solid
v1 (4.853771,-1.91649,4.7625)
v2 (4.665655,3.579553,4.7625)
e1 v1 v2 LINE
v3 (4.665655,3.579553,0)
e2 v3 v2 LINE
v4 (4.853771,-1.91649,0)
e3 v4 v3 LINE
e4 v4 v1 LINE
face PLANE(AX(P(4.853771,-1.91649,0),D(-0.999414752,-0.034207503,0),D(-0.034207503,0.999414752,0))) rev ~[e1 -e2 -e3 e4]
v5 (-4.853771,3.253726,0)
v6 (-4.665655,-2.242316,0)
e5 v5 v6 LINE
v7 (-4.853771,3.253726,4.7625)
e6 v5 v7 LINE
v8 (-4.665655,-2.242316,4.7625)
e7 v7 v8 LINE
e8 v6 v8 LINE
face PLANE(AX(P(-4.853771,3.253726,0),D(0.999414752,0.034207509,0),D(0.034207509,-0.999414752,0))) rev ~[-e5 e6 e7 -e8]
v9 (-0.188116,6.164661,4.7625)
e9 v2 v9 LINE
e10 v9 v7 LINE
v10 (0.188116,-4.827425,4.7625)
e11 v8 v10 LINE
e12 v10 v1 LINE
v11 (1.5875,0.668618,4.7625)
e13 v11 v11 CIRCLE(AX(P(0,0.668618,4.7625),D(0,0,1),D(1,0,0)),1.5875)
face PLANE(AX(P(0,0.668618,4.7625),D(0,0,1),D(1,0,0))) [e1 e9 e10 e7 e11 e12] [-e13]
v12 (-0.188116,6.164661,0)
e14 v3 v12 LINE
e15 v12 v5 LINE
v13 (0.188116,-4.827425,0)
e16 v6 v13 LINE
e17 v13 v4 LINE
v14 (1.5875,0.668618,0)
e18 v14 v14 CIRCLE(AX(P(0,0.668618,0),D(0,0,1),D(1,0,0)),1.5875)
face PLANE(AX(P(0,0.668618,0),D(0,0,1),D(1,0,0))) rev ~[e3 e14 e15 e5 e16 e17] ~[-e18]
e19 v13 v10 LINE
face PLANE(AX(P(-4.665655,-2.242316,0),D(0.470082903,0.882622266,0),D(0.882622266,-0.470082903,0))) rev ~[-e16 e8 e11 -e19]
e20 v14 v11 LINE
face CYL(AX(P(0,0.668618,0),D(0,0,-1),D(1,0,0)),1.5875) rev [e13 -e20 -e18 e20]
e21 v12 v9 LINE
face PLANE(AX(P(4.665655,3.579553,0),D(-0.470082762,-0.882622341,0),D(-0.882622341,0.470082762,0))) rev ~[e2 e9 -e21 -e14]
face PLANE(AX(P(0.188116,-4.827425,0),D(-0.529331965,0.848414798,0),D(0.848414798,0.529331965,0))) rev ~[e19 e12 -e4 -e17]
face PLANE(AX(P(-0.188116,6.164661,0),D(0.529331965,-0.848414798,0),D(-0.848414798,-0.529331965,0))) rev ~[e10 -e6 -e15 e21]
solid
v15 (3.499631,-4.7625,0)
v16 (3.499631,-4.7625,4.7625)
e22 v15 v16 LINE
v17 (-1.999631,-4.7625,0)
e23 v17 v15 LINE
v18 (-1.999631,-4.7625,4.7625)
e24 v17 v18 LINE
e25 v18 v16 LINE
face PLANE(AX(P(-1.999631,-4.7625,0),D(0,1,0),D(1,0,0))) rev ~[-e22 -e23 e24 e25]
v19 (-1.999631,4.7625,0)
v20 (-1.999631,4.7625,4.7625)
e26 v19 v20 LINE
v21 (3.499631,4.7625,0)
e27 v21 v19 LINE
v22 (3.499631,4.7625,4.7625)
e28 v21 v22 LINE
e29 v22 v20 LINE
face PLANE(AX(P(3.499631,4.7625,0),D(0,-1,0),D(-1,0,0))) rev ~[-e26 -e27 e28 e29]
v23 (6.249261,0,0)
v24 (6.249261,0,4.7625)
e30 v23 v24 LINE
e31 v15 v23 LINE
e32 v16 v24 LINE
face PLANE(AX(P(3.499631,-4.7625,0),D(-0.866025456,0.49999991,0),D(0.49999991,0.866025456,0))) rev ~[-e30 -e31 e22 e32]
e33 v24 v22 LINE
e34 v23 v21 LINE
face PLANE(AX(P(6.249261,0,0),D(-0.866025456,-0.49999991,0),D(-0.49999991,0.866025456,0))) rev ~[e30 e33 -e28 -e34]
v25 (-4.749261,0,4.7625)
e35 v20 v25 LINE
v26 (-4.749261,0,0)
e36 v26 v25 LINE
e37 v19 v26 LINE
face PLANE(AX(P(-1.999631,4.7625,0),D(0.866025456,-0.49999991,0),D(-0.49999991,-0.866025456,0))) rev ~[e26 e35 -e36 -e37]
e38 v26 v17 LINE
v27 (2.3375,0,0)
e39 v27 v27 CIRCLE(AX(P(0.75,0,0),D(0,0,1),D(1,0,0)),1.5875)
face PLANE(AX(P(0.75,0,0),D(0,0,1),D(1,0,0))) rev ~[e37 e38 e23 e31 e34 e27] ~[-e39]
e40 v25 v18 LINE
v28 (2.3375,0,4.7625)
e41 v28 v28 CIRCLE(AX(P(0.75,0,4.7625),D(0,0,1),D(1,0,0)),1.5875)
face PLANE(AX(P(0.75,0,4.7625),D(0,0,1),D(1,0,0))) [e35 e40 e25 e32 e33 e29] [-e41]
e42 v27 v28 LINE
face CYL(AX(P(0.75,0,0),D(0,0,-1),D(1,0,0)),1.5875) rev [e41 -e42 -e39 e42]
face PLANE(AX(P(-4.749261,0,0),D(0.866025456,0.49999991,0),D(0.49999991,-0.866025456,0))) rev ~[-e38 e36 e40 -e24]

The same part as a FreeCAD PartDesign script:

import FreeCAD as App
import Part
import Sketcher

V = App.Vector
Q = App.Units.Quantity


def add_polygon(sketch, points):
    """Adds a closed chain of lines whose ends are joined by coincident constraints."""
    first, n = sketch.GeometryCount, len(points)
    for a, b in zip(points, points[1:] + points[:1]):
        sketch.addGeometry(Part.LineSegment(App.Vector(*a, 0), App.Vector(*b, 0)), False)
    for i in range(n):
        sketch.addConstraint(Sketcher.Constraint("Coincident", first + i, 2, first + (i + 1) % n, 1))

doc = App.newDocument("Part")
body = doc.addObject("PartDesign::Body", "Body")

# Sketch on XY plane
sketch1 = doc.addObject("Sketcher::SketchObject", "Sketch")
body.addObject(sketch1)
sketch1.AttachmentSupport = (doc.XY_Plane, [""])
sketch1.MapMode = "FlatFace"
add_polygon(sketch1, [(-0.2, 6.2), (-4.9, 3.3), (-4.7, -2.2), (0.2, -4.8), (4.9, -1.9), (4.7, 3.6)])  # lines 0-5
sketch1.addGeometry(Part.Circle(V(0, 0.7, 0), V(0, 0, 1), 1.6), False)  # 6
sketch1.addConstraint([
    Sketcher.Constraint("PointOnObject", 6, 3, -2),
    Sketcher.Constraint("Parallel", 0, 3),
    Sketcher.Constraint("Parallel", 1, 4),
    Sketcher.Constraint("Parallel", 2, 5),
    Sketcher.Constraint("Equal", 0, 1),
    Sketcher.Constraint("Equal", 1, 2),
    Sketcher.Constraint("Equal", 2, 3),
    Sketcher.Constraint("Diameter", 6, Q("0.125 in")),
    Sketcher.Constraint("Distance", 0, Q("5.499262 mm")),
    Sketcher.Constraint("DistanceY", -1, 1, 6, 3, Q("0.668618 mm")),
    Sketcher.Constraint("DistanceX", 0, 2, -1, 1, Q("4.853771 mm")),
    Sketcher.Constraint("DistanceX", -1, 1, 3, 2, Q("4.853771 mm")),
    Sketcher.Constraint("DistanceY", 3, 2, -1, 1, Q("1.91649 mm")),
    Sketcher.Constraint("DistanceY", -1, 1, 5, 2, Q("6.164661 mm")),
    Sketcher.Constraint("DistanceY", 6, 3, 0, 2, Q("2.585108 mm")),
])
pad1 = doc.addObject("PartDesign::Pad", "Pad")
body.addObject(pad1)
pad1.Profile = sketch1
pad1.Length = Q("0.1875 in")
body2 = doc.addObject("PartDesign::Body", "Body001")

# Sketch on XY plane
sketch2 = doc.addObject("Sketcher::SketchObject", "Sketch001")
body2.addObject(sketch2)
sketch2.AttachmentSupport = (doc.getObject("XY_Plane001"), [""])
sketch2.MapMode = "FlatFace"
add_polygon(sketch2, [(-2, -4.8), (3.5, -4.8), (6.2, 0), (3.5, 4.8), (-2, 4.8), (-4.7, 0)])  # lines 0-5
sketch2.addGeometry(Part.Circle(V(0.8, 0, 0), V(0, 0, 1), 1.6), False)  # 6
sketch2.addConstraint([
    Sketcher.Constraint("Horizontal", 0),
    Sketcher.Constraint("Horizontal", 3),
    Sketcher.Constraint("Symmetric", 0, 2, 2, 2, -1),
    Sketcher.Constraint("PointOnObject", 6, 3, -1),
    Sketcher.Constraint("PointOnObject", 1, 2, -1),
    Sketcher.Constraint("PointOnObject", 4, 2, -1),
    Sketcher.Constraint("Parallel", 1, 4),
    Sketcher.Constraint("Parallel", 2, 5),
    Sketcher.Constraint("Diameter", 6, Q("0.125 in")),
    Sketcher.Constraint("Angle", 1, Q("60.000006 deg")),
    Sketcher.Constraint("DistanceY", 0, 2, -1, 1, Q("0.1875 in")),
    Sketcher.Constraint("DistanceX", -1, 1, 6, 3, Q("0.75 mm")),
    Sketcher.Constraint("DistanceX", 0, 1, 0, 2, Q("5.499262 mm")),
    Sketcher.Constraint("DistanceX", -1, 1, 0, 2, Q("3.499631 mm")),
])
pad2 = doc.addObject("PartDesign::Pad", "Pad001")
body2.addObject(pad2)
pad2.Profile = sketch2
pad2.Length = Q("0.1875 in")

doc.recompute()
